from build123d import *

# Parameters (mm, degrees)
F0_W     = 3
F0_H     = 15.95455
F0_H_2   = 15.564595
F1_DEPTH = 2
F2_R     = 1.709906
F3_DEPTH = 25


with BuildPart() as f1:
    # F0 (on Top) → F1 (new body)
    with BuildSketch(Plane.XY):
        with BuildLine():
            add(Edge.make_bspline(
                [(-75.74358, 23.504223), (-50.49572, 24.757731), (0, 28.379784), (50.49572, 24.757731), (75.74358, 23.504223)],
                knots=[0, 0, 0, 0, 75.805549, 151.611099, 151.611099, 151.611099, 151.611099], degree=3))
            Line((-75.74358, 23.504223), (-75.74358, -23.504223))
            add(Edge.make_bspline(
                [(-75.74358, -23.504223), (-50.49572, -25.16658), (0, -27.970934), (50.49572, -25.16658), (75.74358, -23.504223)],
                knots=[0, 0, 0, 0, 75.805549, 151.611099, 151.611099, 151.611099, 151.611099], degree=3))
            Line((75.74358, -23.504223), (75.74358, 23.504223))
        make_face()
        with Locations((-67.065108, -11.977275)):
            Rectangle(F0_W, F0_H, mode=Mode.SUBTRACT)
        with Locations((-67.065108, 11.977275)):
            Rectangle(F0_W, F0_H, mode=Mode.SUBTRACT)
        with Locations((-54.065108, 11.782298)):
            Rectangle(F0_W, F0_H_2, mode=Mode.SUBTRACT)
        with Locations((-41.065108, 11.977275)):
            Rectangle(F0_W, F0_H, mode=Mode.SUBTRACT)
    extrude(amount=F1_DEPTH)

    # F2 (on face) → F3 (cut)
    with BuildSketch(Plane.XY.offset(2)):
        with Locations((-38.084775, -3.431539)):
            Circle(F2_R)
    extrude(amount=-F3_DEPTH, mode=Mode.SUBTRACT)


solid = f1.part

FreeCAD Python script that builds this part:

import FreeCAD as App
import Part
import Sketcher

V = App.Vector
Q = App.Units.Quantity

doc = App.newDocument("Part")
body = doc.addObject("PartDesign::Body", "Body")

# Sketch on XY plane
sketch1 = doc.addObject("Sketcher::SketchObject", "Sketch")
body.addObject(sketch1)
sketch1.AttachmentSupport = (doc.XY_Plane, [""])
sketch1.MapMode = "FlatFace"
sketch1.addGeometry(Part.BSplineCurve([V(-75.74358, 23.504223, 0), V(-50.49572, 24.757731, 0), V(0, 28.379784, 0), V(50.49572, 24.757731, 0), V(75.74358, 23.504223, 0)], [4, 1, 4], [0, 75.805549, 151.611099], False, 3, [1, 1, 1, 1, 1], False), False)
sketch1.addGeometry(Part.LineSegment(V(-75.74358, 23.504223, 0), V(-75.74358, -23.504223, 0)), False)
sketch1.addGeometry(Part.BSplineCurve([V(-75.74358, -23.504223, 0), V(-50.49572, -25.16658, 0), V(0, -27.970934, 0), V(50.49572, -25.16658, 0), V(75.74358, -23.504223, 0)], [4, 1, 4], [0, 75.805549, 151.611099], False, 3, [1, 1, 1, 1, 1], False), False)
sketch1.addGeometry(Part.LineSegment(V(75.74358, -23.504223, 0), V(75.74358, 23.504223, 0)), False)
sketch1.addGeometry(Part.LineSegment(V(-68.565108, -19.95455, 0), V(-68.565108, -4, 0)), False)
sketch1.addGeometry(Part.LineSegment(V(-68.565108, -4, 0), V(-65.565108, -4, 0)), False)
sketch1.addGeometry(Part.LineSegment(V(-65.565108, -4, 0), V(-65.565108, -19.95455, 0)), False)
sketch1.addGeometry(Part.LineSegment(V(-65.565108, -19.95455, 0), V(-68.565108, -19.95455, 0)), False)
sketch1.addGeometry(Part.LineSegment(V(-42.565108, 4, 0), V(-42.565108, 19.95455, 0)), False)
sketch1.addGeometry(Part.LineSegment(V(-42.565108, 19.95455, 0), V(-39.565108, 19.95455, 0)), False)
sketch1.addGeometry(Part.LineSegment(V(-39.565108, 19.95455, 0), V(-39.565108, 4, 0)), False)
sketch1.addGeometry(Part.LineSegment(V(-39.565108, 4, 0), V(-42.565108, 4, 0)), False)
sketch1.addGeometry(Part.LineSegment(V(-55.565108, 4, 0), V(-55.565108, 19.564595, 0)), False)
sketch1.addGeometry(Part.LineSegment(V(-55.565108, 19.564595, 0), V(-52.565108, 19.564595, 0)), False)
sketch1.addGeometry(Part.LineSegment(V(-52.565108, 19.564595, 0), V(-52.565108, 4, 0)), False)
sketch1.addGeometry(Part.LineSegment(V(-52.565108, 4, 0), V(-55.565108, 4, 0)), False)
sketch1.addGeometry(Part.LineSegment(V(-68.565108, 4, 0), V(-68.565108, 19.95455, 0)), False)
sketch1.addGeometry(Part.LineSegment(V(-68.565108, 19.95455, 0), V(-65.565108, 19.95455, 0)), False)
sketch1.addGeometry(Part.LineSegment(V(-65.565108, 19.95455, 0), V(-65.565108, 4, 0)), False)
sketch1.addGeometry(Part.LineSegment(V(-65.565108, 4, 0), V(-68.565108, 4, 0)), False)
sketch1.addConstraint(Sketcher.Constraint("Block", 0))
sketch1.addConstraint(Sketcher.Constraint("Block", 2))
sketch1.addConstraint(Sketcher.Constraint("Coincident", 0, 1, 1, 1))
sketch1.addConstraint(Sketcher.Constraint("Coincident", 1, 2, 2, 1))
sketch1.addConstraint(Sketcher.Constraint("Coincident", 2, 2, 3, 1))
sketch1.addConstraint(Sketcher.Constraint("Coincident", 3, 2, 0, 2))
sketch1.addConstraint(Sketcher.Constraint("Coincident", 4, 2, 5, 1))
sketch1.addConstraint(Sketcher.Constraint("Coincident", 5, 2, 6, 1))
sketch1.addConstraint(Sketcher.Constraint("Coincident", 6, 2, 7, 1))
sketch1.addConstraint(Sketcher.Constraint("Coincident", 7, 2, 4, 1))
sketch1.addConstraint(Sketcher.Constraint("Coincident", 8, 2, 9, 1))
sketch1.addConstraint(Sketcher.Constraint("Coincident", 9, 2, 10, 1))
sketch1.addConstraint(Sketcher.Constraint("Coincident", 10, 2, 11, 1))
sketch1.addConstraint(Sketcher.Constraint("Coincident", 11, 2, 8, 1))
sketch1.addConstraint(Sketcher.Constraint("Coincident", 12, 2, 13, 1))
sketch1.addConstraint(Sketcher.Constraint("Coincident", 13, 2, 14, 1))
sketch1.addConstraint(Sketcher.Constraint("Coincident", 14, 2, 15, 1))
sketch1.addConstraint(Sketcher.Constraint("Coincident", 15, 2, 12, 1))
sketch1.addConstraint(Sketcher.Constraint("Coincident", 16, 2, 17, 1))
sketch1.addConstraint(Sketcher.Constraint("Coincident", 17, 2, 18, 1))
sketch1.addConstraint(Sketcher.Constraint("Coincident", 18, 2, 19, 1))
sketch1.addConstraint(Sketcher.Constraint("Coincident", 19, 2, 16, 1))
sketch1.addConstraint(Sketcher.Constraint("Vertical", 4))
sketch1.addConstraint(Sketcher.Constraint("Horizontal", 5))
sketch1.addConstraint(Sketcher.Constraint("Vertical", 6))
sketch1.addConstraint(Sketcher.Constraint("Horizontal", 7))
sketch1.addConstraint(Sketcher.Constraint("Vertical", 8))
sketch1.addConstraint(Sketcher.Constraint("Horizontal", 9))
sketch1.addConstraint(Sketcher.Constraint("Vertical", 10))
sketch1.addConstraint(Sketcher.Constraint("Horizontal", 11))
sketch1.addConstraint(Sketcher.Constraint("Vertical", 12))
sketch1.addConstraint(Sketcher.Constraint("Horizontal", 13))
sketch1.addConstraint(Sketcher.Constraint("Vertical", 14))
sketch1.addConstraint(Sketcher.Constraint("Horizontal", 15))
sketch1.addConstraint(Sketcher.Constraint("Vertical", 16))
sketch1.addConstraint(Sketcher.Constraint("Horizontal", 17))
sketch1.addConstraint(Sketcher.Constraint("Vertical", 18))
sketch1.addConstraint(Sketcher.Constraint("Horizontal", 19))
sketch1.addConstraint(Sketcher.Constraint("Symmetric", 7, 2, 16, 2, -1))
sketch1.addConstraint(Sketcher.Constraint("Symmetric", 5, 2, 18, 2, -1))
sketch1.addConstraint(Sketcher.Constraint("Horizontal", 11, 2, 14, 2))
sketch1.addConstraint(Sketcher.Constraint("Horizontal", 9, 2, 16, 2))
sketch1.addConstraint(Sketcher.Constraint("Horizontal", 15, 2, 18, 2))
sketch1.addConstraint(Sketcher.Constraint("Equal", 7, 9))
sketch1.addConstraint(Sketcher.Constraint("Equal", 11, 13))
sketch1.addConstraint(Sketcher.Constraint("DistanceX", 5, 1, 5, 2, Q("3 mm")))
sketch1.addConstraint(Sketcher.Constraint("DistanceY", 4, 2, -1, 1, Q("4 mm")))
sketch1.addConstraint(Sketcher.Constraint("DistanceX", 5, 2, 8, 2, Q("23 mm")))
sketch1.addConstraint(Sketcher.Constraint("DistanceX", 12, 2, 8, 2, Q("13 mm")))
sketch1.addConstraint(Sketcher.Constraint("DistanceY", 4, 1, 4, 2, Q("15.95455 mm")))
sketch1.addConstraint(Sketcher.Constraint("DistanceY", 12, 1, 12, 2, Q("15.564595 mm")))
sketch1.addConstraint(Sketcher.Constraint("DistanceX", 8, 2, -1, 1, Q("42.565108 mm")))
pad1 = doc.addObject("PartDesign::Pad", "Pad")
body.addObject(pad1)
pad1.Profile = sketch1
pad1.Length = 2

# Sketch on XY plane
sketch2 = doc.addObject("Sketcher::SketchObject", "Sketch001")
body.addObject(sketch2)
sketch2.AttachmentSupport = (doc.XY_Plane, [""])
sketch2.MapMode = "FlatFace"
sketch2.AttachmentOffset = App.Placement(V(0, 0, 2), App.Rotation())
sketch2.addGeometry(Part.Circle(V(-38.1, -3.4, 0), V(0, 0, 1), 1.7), False)
sketch2.addConstraint(Sketcher.Constraint("Diameter", 0, Q("3.419812 mm")))
sketch2.addConstraint(Sketcher.Constraint("DistanceY", 0, 3, -1, 1, Q("3.431539 mm")))
sketch2.addConstraint(Sketcher.Constraint("DistanceX", 0, 3, -1, 1, Q("38.084775 mm")))
pocket1 = doc.addObject("PartDesign::Pocket", "Pocket")
body.addObject(pocket1)
pocket1.Profile = sketch2
pocket1.Length = 25

doc.recompute()
